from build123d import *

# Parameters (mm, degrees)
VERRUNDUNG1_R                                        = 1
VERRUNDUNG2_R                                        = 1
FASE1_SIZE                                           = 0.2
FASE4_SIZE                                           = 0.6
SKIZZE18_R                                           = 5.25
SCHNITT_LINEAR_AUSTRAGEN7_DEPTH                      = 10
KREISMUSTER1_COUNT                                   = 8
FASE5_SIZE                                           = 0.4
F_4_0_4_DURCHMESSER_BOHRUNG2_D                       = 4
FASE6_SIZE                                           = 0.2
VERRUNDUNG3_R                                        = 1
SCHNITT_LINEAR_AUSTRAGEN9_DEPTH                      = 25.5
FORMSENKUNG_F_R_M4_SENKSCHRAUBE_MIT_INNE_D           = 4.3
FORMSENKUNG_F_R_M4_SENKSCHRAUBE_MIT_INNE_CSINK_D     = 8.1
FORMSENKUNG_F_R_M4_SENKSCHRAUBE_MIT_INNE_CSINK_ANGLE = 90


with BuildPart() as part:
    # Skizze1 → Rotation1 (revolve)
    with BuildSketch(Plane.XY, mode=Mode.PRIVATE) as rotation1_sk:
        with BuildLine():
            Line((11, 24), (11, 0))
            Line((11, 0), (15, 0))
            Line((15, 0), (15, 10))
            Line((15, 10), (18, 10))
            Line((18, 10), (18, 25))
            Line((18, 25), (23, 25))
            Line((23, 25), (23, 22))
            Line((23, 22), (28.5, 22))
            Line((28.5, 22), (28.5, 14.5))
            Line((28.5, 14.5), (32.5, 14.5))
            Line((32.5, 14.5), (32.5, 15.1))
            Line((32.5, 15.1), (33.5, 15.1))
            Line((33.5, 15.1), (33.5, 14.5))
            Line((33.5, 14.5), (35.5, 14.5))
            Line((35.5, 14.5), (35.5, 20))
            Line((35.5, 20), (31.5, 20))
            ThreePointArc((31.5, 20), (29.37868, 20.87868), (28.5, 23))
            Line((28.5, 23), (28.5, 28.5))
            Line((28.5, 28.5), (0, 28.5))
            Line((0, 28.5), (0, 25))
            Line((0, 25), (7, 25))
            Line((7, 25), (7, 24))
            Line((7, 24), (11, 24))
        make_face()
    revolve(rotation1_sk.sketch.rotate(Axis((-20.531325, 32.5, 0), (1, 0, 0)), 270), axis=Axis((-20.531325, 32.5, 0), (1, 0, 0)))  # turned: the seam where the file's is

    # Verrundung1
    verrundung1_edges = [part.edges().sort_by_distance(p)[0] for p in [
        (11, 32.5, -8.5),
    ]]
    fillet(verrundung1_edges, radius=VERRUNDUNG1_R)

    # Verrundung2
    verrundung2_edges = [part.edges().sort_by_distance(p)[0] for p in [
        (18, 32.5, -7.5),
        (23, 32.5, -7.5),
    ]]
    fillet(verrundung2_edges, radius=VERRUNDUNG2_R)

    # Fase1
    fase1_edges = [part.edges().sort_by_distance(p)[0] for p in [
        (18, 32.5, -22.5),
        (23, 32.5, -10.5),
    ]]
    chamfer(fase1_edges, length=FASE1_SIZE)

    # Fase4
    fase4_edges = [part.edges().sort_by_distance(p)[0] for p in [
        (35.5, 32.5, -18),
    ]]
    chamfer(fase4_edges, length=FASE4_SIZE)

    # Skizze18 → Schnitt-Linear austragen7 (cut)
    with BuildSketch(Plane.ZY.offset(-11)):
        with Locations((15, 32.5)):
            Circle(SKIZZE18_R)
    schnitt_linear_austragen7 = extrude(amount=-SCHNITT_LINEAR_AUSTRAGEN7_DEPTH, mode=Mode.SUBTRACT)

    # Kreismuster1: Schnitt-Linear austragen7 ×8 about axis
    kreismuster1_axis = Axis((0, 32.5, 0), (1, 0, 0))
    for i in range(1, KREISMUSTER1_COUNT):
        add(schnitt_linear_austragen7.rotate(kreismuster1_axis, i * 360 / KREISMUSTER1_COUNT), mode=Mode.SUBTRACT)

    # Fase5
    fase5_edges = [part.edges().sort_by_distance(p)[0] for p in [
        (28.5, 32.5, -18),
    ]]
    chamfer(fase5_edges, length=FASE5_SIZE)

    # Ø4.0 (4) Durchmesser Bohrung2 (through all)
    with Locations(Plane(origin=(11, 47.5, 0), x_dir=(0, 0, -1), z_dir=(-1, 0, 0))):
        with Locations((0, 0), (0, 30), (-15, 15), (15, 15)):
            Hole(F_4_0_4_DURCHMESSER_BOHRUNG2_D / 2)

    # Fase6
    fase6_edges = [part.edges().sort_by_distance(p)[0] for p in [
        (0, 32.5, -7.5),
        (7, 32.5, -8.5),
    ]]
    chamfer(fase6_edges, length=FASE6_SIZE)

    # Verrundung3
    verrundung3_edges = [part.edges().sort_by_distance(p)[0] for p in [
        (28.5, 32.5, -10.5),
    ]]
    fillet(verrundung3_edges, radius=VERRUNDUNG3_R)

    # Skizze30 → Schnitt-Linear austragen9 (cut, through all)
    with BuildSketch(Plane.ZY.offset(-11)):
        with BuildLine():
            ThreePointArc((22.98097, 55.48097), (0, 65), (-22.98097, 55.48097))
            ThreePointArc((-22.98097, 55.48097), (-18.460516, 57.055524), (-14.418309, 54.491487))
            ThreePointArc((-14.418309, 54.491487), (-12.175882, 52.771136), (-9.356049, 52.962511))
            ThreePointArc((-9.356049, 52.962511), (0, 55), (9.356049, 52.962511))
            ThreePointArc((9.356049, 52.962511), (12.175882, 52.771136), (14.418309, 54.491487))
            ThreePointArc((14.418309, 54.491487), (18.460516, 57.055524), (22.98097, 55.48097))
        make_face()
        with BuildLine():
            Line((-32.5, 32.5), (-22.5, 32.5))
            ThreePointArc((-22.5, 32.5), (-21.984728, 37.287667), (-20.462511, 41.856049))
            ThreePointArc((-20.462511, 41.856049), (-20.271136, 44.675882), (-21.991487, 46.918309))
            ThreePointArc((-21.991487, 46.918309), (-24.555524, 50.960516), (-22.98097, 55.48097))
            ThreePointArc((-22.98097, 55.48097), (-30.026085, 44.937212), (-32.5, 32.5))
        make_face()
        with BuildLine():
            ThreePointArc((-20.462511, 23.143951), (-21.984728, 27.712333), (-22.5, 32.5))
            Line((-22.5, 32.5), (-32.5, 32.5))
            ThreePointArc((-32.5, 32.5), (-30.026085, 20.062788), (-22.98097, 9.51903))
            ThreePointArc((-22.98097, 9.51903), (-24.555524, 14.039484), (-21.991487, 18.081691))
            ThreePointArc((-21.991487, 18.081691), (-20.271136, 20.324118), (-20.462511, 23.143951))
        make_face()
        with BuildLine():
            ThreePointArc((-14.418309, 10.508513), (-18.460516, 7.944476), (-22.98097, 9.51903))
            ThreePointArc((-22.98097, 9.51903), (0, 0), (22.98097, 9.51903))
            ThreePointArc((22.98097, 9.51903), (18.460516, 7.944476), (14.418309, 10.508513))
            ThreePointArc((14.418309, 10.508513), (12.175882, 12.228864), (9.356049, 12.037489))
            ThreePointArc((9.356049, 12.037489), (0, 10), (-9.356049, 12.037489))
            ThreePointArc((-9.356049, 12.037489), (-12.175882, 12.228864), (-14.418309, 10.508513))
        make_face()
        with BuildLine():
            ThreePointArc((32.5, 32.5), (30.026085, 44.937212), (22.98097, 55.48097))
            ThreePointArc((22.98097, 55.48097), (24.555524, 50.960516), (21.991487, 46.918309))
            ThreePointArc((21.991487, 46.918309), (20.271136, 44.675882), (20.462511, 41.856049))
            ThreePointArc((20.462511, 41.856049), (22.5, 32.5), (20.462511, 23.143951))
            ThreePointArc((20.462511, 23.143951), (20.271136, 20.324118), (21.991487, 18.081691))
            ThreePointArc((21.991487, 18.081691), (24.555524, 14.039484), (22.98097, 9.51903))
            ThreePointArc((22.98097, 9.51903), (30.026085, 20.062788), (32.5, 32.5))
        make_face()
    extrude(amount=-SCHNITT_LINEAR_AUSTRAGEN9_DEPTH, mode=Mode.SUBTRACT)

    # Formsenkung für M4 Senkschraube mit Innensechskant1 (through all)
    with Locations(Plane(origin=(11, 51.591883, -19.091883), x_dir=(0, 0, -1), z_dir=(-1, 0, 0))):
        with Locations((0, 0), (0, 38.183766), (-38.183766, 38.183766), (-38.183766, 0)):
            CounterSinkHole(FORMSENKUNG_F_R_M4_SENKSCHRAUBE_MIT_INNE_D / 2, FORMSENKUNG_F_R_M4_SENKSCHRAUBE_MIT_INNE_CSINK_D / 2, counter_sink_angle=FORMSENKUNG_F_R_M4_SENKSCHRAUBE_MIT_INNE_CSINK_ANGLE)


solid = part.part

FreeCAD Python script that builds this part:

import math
import FreeCAD as App
import Part
import Sketcher
from FreeCAD import Vector


def edges_at(feature, points):
    """Names of the edges that pass closest to the given points."""
    edges = feature.Shape.Edges
    near = lambda p: min(range(len(edges)), key=lambda i: edges[i].distToShape(Part.Vertex(*p))[0])
    return sorted({f"Edge{near(p) + 1}" for p in points})

doc = App.newDocument("Part")
params = doc.addObject("Spreadsheet::Sheet", "Params")
for row, (alias, value) in enumerate([
    ("sketch1_radius", "3.000001 mm"),
    ("sketch1_width", "4 mm"),
    ("sketch1_width2", "3 mm"),
    ("sketch1_width3", "5 mm"),
    ("sketch1_width4", "1 mm"),
    ("revolution_angle", "360 deg"),
    ("fillet_radius", "1 mm"),
    ("fillet2_radius", "1 mm"),
    ("chamfer_size", "0.2 mm"),
    ("chamfer2_size", "0.6 mm"),
    ("sketch2_diameter", "10.5 mm"),
    ("pocket1_length", "10 mm"),
    ("chamfer3_size", "0.4 mm"),
    ("sketch3_diameter", "4 mm"),
    ("hole_diameter", "4 mm"),
    ("chamfer4_size", "0.2 mm"),
    ("fillet3_radius", "1 mm"),
    ("sketch4_radius", "4 mm"),
    ("sketch4_radius2", "32.499998 mm"),
    ("sketch4_radius3", "5.5 mm"),
    ("sketch5_diameter", "4.3 mm"),
    ("hole2_diameter", "4.3 mm"),
    ("hole2_csink_diameter", "8.1 mm"),
], start=1):
    params.set(f"A{row}", alias)
    params.set(f"B{row}", "=" + value)
    params.setAlias(f"B{row}", alias)

body = doc.addObject("PartDesign::Body", "Body")

sketch1 = body.newObject("Sketcher::SketchObject", "Sketch")
sketch1.AttachmentSupport = (doc.getObject("XY_Plane"), [""])
sketch1.MapMode = "FlatFace"
sketch1.addGeometry([
    Part.LineSegment(Vector(11, 24, 0), Vector(11, 0, 0)),
    Part.LineSegment(Vector(11, 0, 0), Vector(15, 0, 0)),
    Part.LineSegment(Vector(15, 0, 0), Vector(15, 10, 0)),
    Part.LineSegment(Vector(15, 10, 0), Vector(18, 10, 0)),
    Part.LineSegment(Vector(18, 10, 0), Vector(18, 25, 0)),
    Part.LineSegment(Vector(18, 25, 0), Vector(23, 25, 0)),
    Part.LineSegment(Vector(23, 25, 0), Vector(23, 22, 0)),
    Part.LineSegment(Vector(23, 22, 0), Vector(28.5, 22, 0)),
    Part.LineSegment(Vector(28.5, 22, 0), Vector(28.5, 14.5, 0)),
    Part.LineSegment(Vector(28.5, 14.5, 0), Vector(32.5, 14.5, 0)),
    Part.LineSegment(Vector(32.5, 14.5, 0), Vector(32.5, 15.1, 0)),
    Part.LineSegment(Vector(32.5, 15.1, 0), Vector(33.5, 15.1, 0)),
    Part.LineSegment(Vector(33.5, 15.1, 0), Vector(33.5, 14.5, 0)),
    Part.LineSegment(Vector(33.5, 14.5, 0), Vector(35.5, 14.5, 0)),
    Part.LineSegment(Vector(35.5, 14.5, 0), Vector(35.5, 20, 0)),
    Part.LineSegment(Vector(35.5, 20, 0), Vector(31.5, 20, 0)),
    Part.ArcOfCircle(Part.Circle(Vector(31.5, 23, 0), Vector(0, 0, 1), 3), math.radians(-180), math.radians(-90)),
    Part.LineSegment(Vector(28.5, 23, 0), Vector(28.5, 28.5, 0)),
    Part.LineSegment(Vector(28.5, 28.5, 0), Vector(0, 28.5, 0)),
    Part.LineSegment(Vector(0, 28.5, 0), Vector(0, 25, 0)),
    Part.LineSegment(Vector(0, 25, 0), Vector(7, 25, 0)),
    Part.LineSegment(Vector(7, 25, 0), Vector(7, 24, 0)),
    Part.LineSegment(Vector(7, 24, 0), Vector(11, 24, 0)),
], False)
sketch1.addGeometry(Part.LineSegment(Vector(0, 32.5, 0), Vector(35.5, 32.5, 0)), True)
sketch1.addConstraint([
    Sketcher.Constraint("Coincident", 0, 2, 1, 1),
    Sketcher.Constraint("Coincident", 1, 2, 2, 1),
    Sketcher.Constraint("Coincident", 2, 2, 3, 1),
    Sketcher.Constraint("Coincident", 3, 2, 4, 1),
    Sketcher.Constraint("Coincident", 4, 2, 5, 1),
    Sketcher.Constraint("Coincident", 5, 2, 6, 1),
    Sketcher.Constraint("Coincident", 6, 2, 7, 1),
    Sketcher.Constraint("Coincident", 7, 2, 8, 1),
    Sketcher.Constraint("Coincident", 8, 2, 9, 1),
    Sketcher.Constraint("Coincident", 9, 2, 10, 1),
    Sketcher.Constraint("Coincident", 10, 2, 11, 1),
    Sketcher.Constraint("Coincident", 11, 2, 12, 1),
    Sketcher.Constraint("Coincident", 12, 2, 13, 1),
    Sketcher.Constraint("Coincident", 13, 2, 14, 1),
    Sketcher.Constraint("Coincident", 14, 2, 15, 1),
    Sketcher.Constraint("Tangent", 15, 2, 16, 2),
    Sketcher.Constraint("Tangent", 16, 1, 17, 1),
    Sketcher.Constraint("Coincident", 17, 2, 18, 1),
    Sketcher.Constraint("Coincident", 18, 2, 19, 1),
    Sketcher.Constraint("Coincident", 19, 2, 20, 1),
    Sketcher.Constraint("Coincident", 20, 2, 21, 1),
    Sketcher.Constraint("Coincident", 21, 2, 22, 1),
    Sketcher.Constraint("Coincident", 22, 2, 0, 1),
    Sketcher.Constraint("Vertical", 0),
    Sketcher.Constraint("Horizontal", 1),
    Sketcher.Constraint("Vertical", 2),
    Sketcher.Constraint("Horizontal", 3),
    Sketcher.Constraint("Vertical", 4),
    Sketcher.Constraint("Horizontal", 5),
    Sketcher.Constraint("Vertical", 6),
    Sketcher.Constraint("Horizontal", 7),
    Sketcher.Constraint("Vertical", 8),
    Sketcher.Constraint("Horizontal", 9),
    Sketcher.Constraint("Vertical", 10),
    Sketcher.Constraint("Horizontal", 11),
    Sketcher.Constraint("Vertical", 12),
    Sketcher.Constraint("Horizontal", 13),
    Sketcher.Constraint("Vertical", 14),
    Sketcher.Constraint("Horizontal", 15),
    Sketcher.Constraint("Vertical", 17),
    Sketcher.Constraint("Horizontal", 18),
    Sketcher.Constraint("Vertical", 19),
    Sketcher.Constraint("Horizontal", 20),
    Sketcher.Constraint("Vertical", 21),
    Sketcher.Constraint("Horizontal", 22),
    Sketcher.Constraint("Horizontal", 23),
    Sketcher.Constraint("PointOnObject", 0, 2, -1),
    Sketcher.Constraint("PointOnObject", 18, 2, -2),
    Sketcher.Constraint("PointOnObject", 23, 1, -2),
    Sketcher.Constraint("Horizontal", 9, 2, 12, 2),
    Sketcher.Constraint("Horizontal", 5, 2, 19, 2),
    Sketcher.Constraint("Vertical", 8, 2, 16, 1),
    Sketcher.Constraint("Vertical", 14, 2, 23, 2),
    Sketcher.Constraint("Equal", 1, 9),
    Sketcher.Constraint("Equal", 9, 15),
    Sketcher.Constraint("Equal", 15, 22),
    Sketcher.Constraint("Equal", 3, 6),
    Sketcher.Constraint("Equal", 7, 14),
    Sketcher.Constraint("Equal", 14, 17),
    Sketcher.Constraint("Equal", 11, 21),
    Sketcher.Constraint("Radius", 16, 3.000001),
    Sketcher.Constraint("DistanceX", 1, 1, 1, 2, 4.0),
    Sketcher.Constraint("DistanceX", 3, 1, 3, 2, 3.0),
    Sketcher.Constraint("DistanceX", 5, 1, 5, 2, 5.0),
    Sketcher.Constraint("DistanceX", 11, 1, 11, 2, 1.0),
    Sketcher.Constraint("DistanceX", 20, 1, 20, 2, 7.0),
    Sketcher.Constraint("DistanceY", 0, 2, 0, 1, 24.0),
    Sketcher.Constraint("DistanceY", 2, 1, 2, 2, 10.0),
    Sketcher.Constraint("DistanceX", 7, 1, 7, 2, 5.5),
    Sketcher.Constraint("DistanceY", 8, 2, 8, 1, 7.5),
    Sketcher.Constraint("DistanceY", 10, 1, 10, 2, 0.6),
    Sketcher.Constraint("DistanceY", 18, 2, 23, 1, 4.0),
])
sketch1.setExpression("Constraints[60]", "Params.sketch1_radius")
sketch1.setExpression("Constraints[61]", "Params.sketch1_width")
sketch1.setExpression("Constraints[62]", "Params.sketch1_width2")
sketch1.setExpression("Constraints[63]", "Params.sketch1_width3")
sketch1.setExpression("Constraints[64]", "Params.sketch1_width4")
revolution = body.newObject("PartDesign::Revolution", "Revolution")
revolution.Profile = sketch1
revolution.ReferenceAxis = (sketch1, ["Axis0"])
revolution.setExpression("Angle", "Params.revolution_angle")
doc.recompute()

fillet = body.newObject("PartDesign::Fillet", "Fillet")
fillet.Base = (revolution, edges_at(revolution, [(11, 32.5, -8.5)]))
fillet.setExpression("Radius", "Params.fillet_radius")
doc.recompute()

fillet2 = body.newObject("PartDesign::Fillet", "Fillet001")
fillet2.Base = (fillet, edges_at(fillet, [(18, 32.5, -7.5), (23, 32.5, -7.5)]))
fillet2.setExpression("Radius", "Params.fillet2_radius")
doc.recompute()

chamfer = body.newObject("PartDesign::Chamfer", "Chamfer")
chamfer.Base = (fillet2, edges_at(fillet2, [(18, 32.5, -22.5), (23, 32.5, -10.5)]))
chamfer.setExpression("Size", "Params.chamfer_size")
doc.recompute()

chamfer2 = body.newObject("PartDesign::Chamfer", "Chamfer001")
chamfer2.Base = (chamfer, edges_at(chamfer, [(35.5, 32.5, -18)]))
chamfer2.setExpression("Size", "Params.chamfer2_size")

sketch2 = body.newObject("Sketcher::SketchObject", "Sketch001")
sketch2.AttachmentSupport = (doc.getObject("YZ_Plane"), [""])
sketch2.MapMode = "FlatFace"
sketch2.AttachmentOffset = App.Placement(Vector(0, 0, 11), App.Rotation())
sketch2.addGeometry(Part.Circle(Vector(32, 15, 0), Vector(0, 0, 1), 5), False)
sketch2.addConstraint([
    Sketcher.Constraint("Diameter", 0, 10.5),
    Sketcher.Constraint("DistanceY", -1, 1, 0, 3, 15.0),
    Sketcher.Constraint("DistanceX", -1, 1, 0, 3, 32.5),
])
sketch2.setExpression("Constraints[0]", "Params.sketch2_diameter")
pocket1 = body.newObject("PartDesign::Pocket", "Pocket")
pocket1.Profile = sketch2
pocket1.setExpression("Length", "Params.pocket1_length")
pocket1.Reversed = True
doc.recompute()

datumline = body.newObject("PartDesign::Line", "DatumLine")
datumline.Placement = App.Placement(Vector(0, 32.5, 0), App.Rotation(Vector(0, 0, 1), Vector(1, 0, 0)))
polarpattern = body.newObject("PartDesign::PolarPattern", "PolarPattern")
polarpattern.Originals = [pocket1]
polarpattern.Axis = (datumline, [""])
polarpattern.Angle = 360
polarpattern.Occurrences = 8
body.Tip = polarpattern
doc.recompute()

chamfer3 = body.newObject("PartDesign::Chamfer", "Chamfer002")
chamfer3.Base = (polarpattern, edges_at(polarpattern, [(28.5, 32.5, -18)]))
chamfer3.setExpression("Size", "Params.chamfer3_size")

sketch3 = body.newObject("Sketcher::SketchObject", "Sketch002")
sketch3.AttachmentSupport = (doc.getObject("YZ_Plane"), [""])
sketch3.MapMode = "FlatFace"
sketch3.AttachmentOffset = App.Placement(Vector(0, 0, 11), App.Rotation())
sketch3.addGeometry([
    Part.Circle(Vector(47.5, 0, 0), Vector(0, 0, 1), 2),
    Part.Circle(Vector(17.5, 0, 0), Vector(0, 0, 1), 2),
    Part.Circle(Vector(32.5, 15, 0), Vector(0, 0, 1), 2),
    Part.Circle(Vector(32.5, -15, 0), Vector(0, 0, 1), 2),
], False)
sketch3.addConstraint([
    Sketcher.Constraint("Equal", 0, 1),
    Sketcher.Constraint("Equal", 1, 2),
    Sketcher.Constraint("Equal", 2, 3),
    Sketcher.Constraint("Symmetric", 2, 3, 3, 3, -1),
    Sketcher.Constraint("PointOnObject", 0, 3, -1),
    Sketcher.Constraint("PointOnObject", 1, 3, -1),
    Sketcher.Constraint("Diameter", 0, 4.0),
    Sketcher.Constraint("DistanceY", -1, 1, 2, 3, 15.0),
    Sketcher.Constraint("DistanceX", 1, 3, 0, 3, 30.0),
    Sketcher.Constraint("DistanceX", 2, 3, 0, 3, 15.0),
    Sketcher.Constraint("DistanceX", -1, 1, 0, 3, 47.5),
])
sketch3.setExpression("Constraints[6]", "Params.sketch3_diameter")
doc.recompute()
hole = body.newObject("PartDesign::Hole", "Hole")
hole.Profile = sketch3
hole.ThreadType = "None"
hole.setExpression("Diameter", "Params.hole_diameter")
hole.DepthType = "ThroughAll"
hole.Reversed = True
doc.recompute()

chamfer4 = body.newObject("PartDesign::Chamfer", "Chamfer003")
chamfer4.Base = (hole, edges_at(hole, [(0, 32.5, -7.5), (7, 32.5, -8.5)]))
chamfer4.setExpression("Size", "Params.chamfer4_size")
doc.recompute()

fillet3 = body.newObject("PartDesign::Fillet", "Fillet002")
fillet3.Base = (chamfer4, edges_at(chamfer4, [(28.5, 32.5, -10.5)]))
fillet3.setExpression("Radius", "Params.fillet3_radius")

sketch4 = body.newObject("Sketcher::SketchObject", "Sketch003")
sketch4.AttachmentSupport = (doc.getObject("YZ_Plane"), [""])
sketch4.MapMode = "FlatFace"
sketch4.AttachmentOffset = App.Placement(Vector(0, 0, 11), App.Rotation())
sketch4.addGeometry([
    Part.ArcOfCircle(Part.Circle(Vector(32.5, 0, 0), Vector(0, 0, 1), 32.5), math.radians(-45), math.radians(45)),
    Part.ArcOfCircle(Part.Circle(Vector(51.6, -19.1, 0), Vector(0, 0, 1), 5.5), math.radians(-45), math.radians(58)),
    Part.ArcOfCircle(Part.Circle(Vector(56.6, -11, 0), Vector(0, 0, 1), 4), math.radians(155), math.radians(238)),
    Part.ArcOfCircle(Part.Circle(Vector(32.5, 0, 0), Vector(0, 0, 1), 22.5), math.radians(-25), math.radians(25)),
    Part.ArcOfCircle(Part.Circle(Vector(56.6, 11, 0), Vector(0, 0, 1), 4), math.radians(122), math.radians(205)),
    Part.ArcOfCircle(Part.Circle(Vector(51.6, 19.1, 0), Vector(0, 0, 1), 5.5), math.radians(-58), math.radians(45)),
    Part.ArcOfCircle(Part.Circle(Vector(32.5, 0, 0), Vector(0, 0, 1), 22.5), math.radians(-90), math.radians(-65)),
    Part.ArcOfCircle(Part.Circle(Vector(43.5, -24.1, 0), Vector(0, 0, 1), 4), math.radians(32), math.radians(115)),
    Part.ArcOfCircle(Part.Circle(Vector(51.6, -19.1, 0), Vector(0, 0, 1), 5.5), math.radians(-148), math.radians(-45)),
    Part.ArcOfCircle(Part.Circle(Vector(32.5, 0, 0), Vector(0, 0, 1), 32.5), math.radians(-90), math.radians(-45)),
    Part.ArcOfCircle(Part.Circle(Vector(32.5, 0, 0), Vector(0, 0, 1), 32.5), math.radians(-135), math.radians(-90)),
    Part.ArcOfCircle(Part.Circle(Vector(13.4, -19.1, 0), Vector(0, 0, 1), 5.5), math.radians(-135), math.radians(-32)),
    Part.ArcOfCircle(Part.Circle(Vector(21.5, -24.1, 0), Vector(0, 0, 1), 4), math.radians(65), math.radians(148)),
    Part.ArcOfCircle(Part.Circle(Vector(32.5, 0, 0), Vector(0, 0, 1), 22.5), math.radians(-115), math.radians(-90)),
    Part.ArcOfCircle(Part.Circle(Vector(13.4, -19.1, 0), Vector(0, 0, 1), 5.5), math.radians(122), math.radians(225)),
    Part.ArcOfCircle(Part.Circle(Vector(32.5, 0, 0), Vector(0, 0, 1), 32.5), math.radians(135), math.radians(225)),
    Part.ArcOfCircle(Part.Circle(Vector(13.4, 19.1, 0), Vector(0, 0, 1), 5.5), math.radians(135), math.radians(238)),
    Part.ArcOfCircle(Part.Circle(Vector(8.4, 11, 0), Vector(0, 0, 1), 4), math.radians(-25), math.radians(58)),
    Part.ArcOfCircle(Part.Circle(Vector(32.5, 0, 0), Vector(0, 0, 1), 22.5), math.radians(155), math.radians(205)),
    Part.ArcOfCircle(Part.Circle(Vector(8.4, -11, 0), Vector(0, 0, 1), 4), math.radians(-58), math.radians(25)),
    Part.ArcOfCircle(Part.Circle(Vector(32.5, 0, 0), Vector(0, 0, 1), 32.5), math.radians(45), math.radians(90)),
    Part.ArcOfCircle(Part.Circle(Vector(51.6, 19.1, 0), Vector(0, 0, 1), 5.5), math.radians(45), math.radians(148)),
    Part.ArcOfCircle(Part.Circle(Vector(43.5, 24.1, 0), Vector(0, 0, 1), 4), math.radians(-115), math.radians(-32)),
    Part.ArcOfCircle(Part.Circle(Vector(32.5, 0, 0), Vector(0, 0, 1), 22.5), math.radians(65), math.radians(115)),
    Part.ArcOfCircle(Part.Circle(Vector(21.5, 24.1, 0), Vector(0, 0, 1), 4), math.radians(-148), math.radians(-65)),
    Part.ArcOfCircle(Part.Circle(Vector(13.4, 19.1, 0), Vector(0, 0, 1), 5.5), math.radians(32), math.radians(135)),
    Part.ArcOfCircle(Part.Circle(Vector(32.5, 0, 0), Vector(0, 0, 1), 32.5), math.radians(90), math.radians(135)),
], False)
sketch4.addConstraint([
    Sketcher.Constraint("Tangent", 0, 1, 1, 1),
    Sketcher.Constraint("Tangent", 1, 2, 2, 2),
    Sketcher.Constraint("Tangent", 2, 1, 3, 1),
    Sketcher.Constraint("Tangent", 3, 2, 4, 2),
    Sketcher.Constraint("Tangent", 4, 1, 5, 1),
    Sketcher.Constraint("Tangent", 5, 2, 0, 2),
    Sketcher.Constraint("Tangent", 6, 2, 7, 2),
    Sketcher.Constraint("Tangent", 7, 1, 8, 1),
    Sketcher.Constraint("Tangent", 8, 2, 9, 2),
    Sketcher.Constraint("Tangent", 9, 1, 10, 2),
    Sketcher.Constraint("Tangent", 10, 1, 11, 1),
    Sketcher.Constraint("Tangent", 11, 2, 12, 2),
    Sketcher.Constraint("Tangent", 12, 1, 13, 1),
    Sketcher.Constraint("Tangent", 13, 2, 6, 1),
    Sketcher.Constraint("Tangent", 14, 2, 15, 2),
    Sketcher.Constraint("Tangent", 15, 1, 16, 1),
    Sketcher.Constraint("Tangent", 16, 2, 17, 2),
    Sketcher.Constraint("Tangent", 17, 1, 18, 1),
    Sketcher.Constraint("Tangent", 18, 2, 19, 2),
    Sketcher.Constraint("Tangent", 19, 1, 14, 1),
    Sketcher.Constraint("Tangent", 20, 1, 21, 1),
    Sketcher.Constraint("Tangent", 21, 2, 22, 2),
    Sketcher.Constraint("Tangent", 22, 1, 23, 1),
    Sketcher.Constraint("Tangent", 23, 2, 24, 2),
    Sketcher.Constraint("Tangent", 24, 1, 25, 1),
    Sketcher.Constraint("Tangent", 25, 2, 26, 2),
    Sketcher.Constraint("Tangent", 26, 1, 20, 2),
    Sketcher.Constraint("Coincident", 3, 3, 0, 3),
    Sketcher.Constraint("Coincident", 8, 3, 1, 3),
    Sketcher.Constraint("Coincident", 9, 3, 0, 3),
    Sketcher.Constraint("Coincident", 14, 3, 11, 3),
    Sketcher.Constraint("Coincident", 15, 3, 0, 3),
    Sketcher.Constraint("Coincident", 18, 3, 0, 3),
    Sketcher.Constraint("Coincident", 20, 3, 0, 3),
    Sketcher.Constraint("Coincident", 21, 3, 5, 3),
    Sketcher.Constraint("Coincident", 23, 3, 0, 3),
    Sketcher.Constraint("Coincident", 25, 3, 16, 3),
    Sketcher.Constraint("Coincident", 14, 2, 10, 1),
    Sketcher.Constraint("Coincident", 25, 2, 15, 1),
    Sketcher.Constraint("Equal", 2, 4),
    Sketcher.Constraint("Equal", 1, 5),
    Sketcher.Constraint("Equal", 4, 7),
    Sketcher.Constraint("Equal", 5, 8),
    Sketcher.Constraint("Equal", 8, 11),
    Sketcher.Constraint("Equal", 7, 12),
    Sketcher.Constraint("Equal", 6, 13),
    Sketcher.Constraint("Equal", 14, 16),
    Sketcher.Constraint("Equal", 12, 17),
    Sketcher.Constraint("Equal", 3, 18),
    Sketcher.Constraint("Equal", 17, 19),
    Sketcher.Constraint("Equal", 19, 22),
    Sketcher.Constraint("Equal", 18, 23),
    Sketcher.Constraint("Equal", 22, 24),
    Sketcher.Constraint("Symmetric", 2, 3, 4, 3, -1),
    Sketcher.Constraint("Symmetric", 12, 3, 24, 3, -1),
    Sketcher.Constraint("Symmetric", 6, 2, 22, 1, -1),
    Sketcher.Constraint("Horizontal", 8, 3, 11, 3),
    Sketcher.Constraint("Vertical", 23, 3, 9, 1),
    Sketcher.Constraint("Vertical", 9, 1, 13, 2),
    Sketcher.Constraint("Vertical", 13, 2, 26, 1),
    Sketcher.Constraint("Radius", 2, 4.0),
    Sketcher.Constraint("Radius", 0, 32.499998),
    Sketcher.Constraint("Radius", 1, 5.5),
    Sketcher.Constraint("DistanceY", 9, 1, 13, 2, 10.0),
    Sketcher.Constraint("DistanceX", -1, 1, 0, 3, 32.500002),
    Sketcher.Constraint("DistanceY", 2, 1, 3, 2, 18.712098),
])
sketch4.setExpression("Constraints[60]", "Params.sketch4_radius")
sketch4.setExpression("Constraints[61]", "Params.sketch4_radius2")
sketch4.setExpression("Constraints[62]", "Params.sketch4_radius3")
pocket2 = body.newObject("PartDesign::Pocket", "Pocket001")
pocket2.Profile = sketch4
pocket2.Type = "ThroughAll"
pocket2.Reversed = True

sketch5 = body.newObject("Sketcher::SketchObject", "Sketch004")
sketch5.AttachmentSupport = (doc.getObject("YZ_Plane"), [""])
sketch5.MapMode = "FlatFace"
sketch5.AttachmentOffset = App.Placement(Vector(0, 0, 11), App.Rotation())
sketch5.addGeometry([
    Part.Circle(Vector(51.6, -19.1, 0), Vector(0, 0, 1), 2.1),
    Part.Circle(Vector(13.4, -19.1, 0), Vector(0, 0, 1), 2.1),
    Part.Circle(Vector(13.4, 19.1, 0), Vector(0, 0, 1), 2.1),
    Part.Circle(Vector(51.6, 19.1, 0), Vector(0, 0, 1), 2.1),
], False)
sketch5.addConstraint([
    Sketcher.Constraint("Equal", 0, 1),
    Sketcher.Constraint("Equal", 1, 2),
    Sketcher.Constraint("Equal", 2, 3),
    Sketcher.Constraint("Symmetric", 1, 3, 2, 3, -1),
    Sketcher.Constraint("Symmetric", 0, 3, 3, 3, -1),
    Sketcher.Constraint("Horizontal", 0, 3, 1, 3),
    Sketcher.Constraint("Diameter", 0, 4.3),
    Sketcher.Constraint("DistanceX", -1, 1, 0, 3, 51.591883),
    Sketcher.Constraint("DistanceY", 0, 3, -1, 1, 19.091883),
    Sketcher.Constraint("DistanceX", -1, 1, 1, 3, 13.408117),
])
sketch5.setExpression("Constraints[6]", "Params.sketch5_diameter")
doc.recompute()
hole2 = body.newObject("PartDesign::Hole", "Hole001")
hole2.Profile = sketch5
hole2.ThreadType = "None"
hole2.setExpression("Diameter", "Params.hole2_diameter")
hole2.DepthType = "ThroughAll"
hole2.HoleCutType = "Countersink"
hole2.setExpression("HoleCutDiameter", "Params.hole2_csink_diameter")
hole2.HoleCutCountersinkAngle = 90
hole2.Reversed = True

doc.recompute()
